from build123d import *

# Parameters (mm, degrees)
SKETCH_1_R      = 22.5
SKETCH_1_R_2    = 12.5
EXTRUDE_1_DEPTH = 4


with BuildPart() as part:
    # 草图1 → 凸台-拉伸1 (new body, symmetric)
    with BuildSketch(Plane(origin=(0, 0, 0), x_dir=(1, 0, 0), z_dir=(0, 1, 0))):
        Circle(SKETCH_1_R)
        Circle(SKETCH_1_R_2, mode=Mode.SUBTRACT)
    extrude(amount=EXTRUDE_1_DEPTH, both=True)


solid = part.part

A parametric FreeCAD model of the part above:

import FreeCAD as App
import Part
import Sketcher
from FreeCAD import Vector
Q = App.Units.Quantity

doc = App.newDocument("Part")
body = doc.addObject("PartDesign::Body", "Body")

sketch1 = body.newObject("Sketcher::SketchObject", "Sketch")
sketch1.AttachmentSupport = (doc.getObject("XZ_Plane"), [""])
sketch1.MapMode = "FlatFace"
sketch1.addGeometry([
    Part.Circle(Vector(0, 0, 0), Vector(0, 0, 1), 22),
    Part.Circle(Vector(0, 0, 0), Vector(0, 0, 1), 12),
], False)
sketch1.addConstraint([
    Sketcher.Constraint("Coincident", 0, 3, -1, 1),
    Sketcher.Constraint("Coincident", 1, 3, -1, 1),
    Sketcher.Constraint("Diameter", 0, Q("45 mm")),
    Sketcher.Constraint("Diameter", 1, Q("25 mm")),
])
pad1 = body.newObject("PartDesign::Pad", "Pad")
pad1.Profile = sketch1
pad1.Length = 8
pad1.Midplane = True

doc.recompute()
